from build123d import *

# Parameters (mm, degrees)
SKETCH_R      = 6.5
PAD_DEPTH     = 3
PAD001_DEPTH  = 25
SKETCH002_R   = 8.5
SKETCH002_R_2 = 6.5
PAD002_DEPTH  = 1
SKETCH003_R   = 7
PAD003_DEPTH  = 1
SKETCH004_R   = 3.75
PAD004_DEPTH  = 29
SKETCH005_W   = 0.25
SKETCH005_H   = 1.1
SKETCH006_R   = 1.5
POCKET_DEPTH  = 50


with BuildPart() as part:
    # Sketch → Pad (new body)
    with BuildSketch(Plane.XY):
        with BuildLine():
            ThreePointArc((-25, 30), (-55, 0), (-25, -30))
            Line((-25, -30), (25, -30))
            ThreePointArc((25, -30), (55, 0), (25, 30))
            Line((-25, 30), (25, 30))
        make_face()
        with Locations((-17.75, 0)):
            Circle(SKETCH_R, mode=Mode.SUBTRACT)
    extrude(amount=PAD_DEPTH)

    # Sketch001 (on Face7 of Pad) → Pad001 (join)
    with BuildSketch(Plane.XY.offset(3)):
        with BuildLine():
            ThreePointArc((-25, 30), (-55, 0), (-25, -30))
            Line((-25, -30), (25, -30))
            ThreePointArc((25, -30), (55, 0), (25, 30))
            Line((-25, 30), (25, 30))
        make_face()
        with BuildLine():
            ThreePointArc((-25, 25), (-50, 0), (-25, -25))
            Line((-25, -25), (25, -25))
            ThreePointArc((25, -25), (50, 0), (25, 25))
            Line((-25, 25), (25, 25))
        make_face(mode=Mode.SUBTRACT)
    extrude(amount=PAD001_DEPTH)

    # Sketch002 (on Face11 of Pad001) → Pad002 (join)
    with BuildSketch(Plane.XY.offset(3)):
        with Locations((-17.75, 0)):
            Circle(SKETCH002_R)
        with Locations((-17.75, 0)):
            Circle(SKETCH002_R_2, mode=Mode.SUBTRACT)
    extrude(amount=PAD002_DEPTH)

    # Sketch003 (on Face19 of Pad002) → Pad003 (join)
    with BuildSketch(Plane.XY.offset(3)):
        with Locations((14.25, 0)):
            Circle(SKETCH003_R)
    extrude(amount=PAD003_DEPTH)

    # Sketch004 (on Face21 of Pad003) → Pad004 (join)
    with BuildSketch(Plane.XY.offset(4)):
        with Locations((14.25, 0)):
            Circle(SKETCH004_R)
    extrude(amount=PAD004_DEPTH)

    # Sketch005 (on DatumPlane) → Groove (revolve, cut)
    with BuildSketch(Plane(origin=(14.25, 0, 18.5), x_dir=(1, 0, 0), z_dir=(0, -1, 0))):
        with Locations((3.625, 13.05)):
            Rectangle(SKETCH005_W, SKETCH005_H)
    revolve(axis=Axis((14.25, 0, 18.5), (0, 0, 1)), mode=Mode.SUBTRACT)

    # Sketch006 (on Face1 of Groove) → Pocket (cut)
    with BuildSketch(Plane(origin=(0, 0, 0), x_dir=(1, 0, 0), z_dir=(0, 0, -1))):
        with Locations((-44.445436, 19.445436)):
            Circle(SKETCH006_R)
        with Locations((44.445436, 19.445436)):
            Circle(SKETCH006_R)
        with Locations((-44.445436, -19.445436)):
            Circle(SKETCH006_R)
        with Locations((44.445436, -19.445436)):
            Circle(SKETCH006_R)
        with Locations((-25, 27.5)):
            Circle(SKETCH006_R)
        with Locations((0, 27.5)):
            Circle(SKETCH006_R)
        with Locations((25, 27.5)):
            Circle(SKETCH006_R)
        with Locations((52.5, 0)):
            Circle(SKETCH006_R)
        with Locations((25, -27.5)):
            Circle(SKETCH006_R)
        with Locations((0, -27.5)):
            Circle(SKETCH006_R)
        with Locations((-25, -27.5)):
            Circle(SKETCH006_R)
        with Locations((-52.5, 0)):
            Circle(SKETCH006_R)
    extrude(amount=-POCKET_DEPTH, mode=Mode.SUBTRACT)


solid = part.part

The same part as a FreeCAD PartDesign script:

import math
import FreeCAD as App
import Part
import Sketcher
Q = App.Units.Quantity


def add_polygon(sketch, points):
    """Adds a closed chain of lines whose ends are joined by coincident constraints."""
    first, n = sketch.GeometryCount, len(points)
    for a, b in zip(points, points[1:] + points[:1]):
        sketch.addGeometry(Part.LineSegment(App.Vector(*a, 0), App.Vector(*b, 0)), False)
    for i in range(n):
        sketch.addConstraint(Sketcher.Constraint("Coincident", first + i, 2, first + (i + 1) % n, 1))

doc = App.newDocument("Part")
params = doc.addObject("Spreadsheet::Sheet", "Params")
for row, (alias, value) in enumerate([
    ("sketch1_diameter", "13 mm"),
    ("sketch1_radius", "30 mm"),
    ("sketch1_width", "50 mm"),
    ("pad1_length", "3 mm"),
    ("sketch2_radius", "30 mm"),
    ("sketch2_radius2", "25 mm"),
    ("sketch2_width", "50 mm"),
    ("pad2_length", "25 mm"),
    ("sketch3_diameter", "17 mm"),
    ("sketch3_diameter2", "13 mm"),
    ("pad3_length", "1 mm"),
    ("sketch4_diameter", "14 mm"),
    ("pad4_length", "1 mm"),
    ("sketch5_diameter", "7.5 mm"),
    ("pad5_length", "29 mm"),
    ("sketch6_height", "1.1 mm"),
    ("sketch6_width", "0.25 mm"),
    ("groove_angle", "360 deg"),
    ("sketch7_diameter", "3 mm"),
    ("pocket1_length", "50 mm"),
], start=1):
    params.set(f"A{row}", alias)
    params.set(f"B{row}", "=" + value)
    params.setAlias(f"B{row}", alias)

body = doc.addObject("PartDesign::Body", "Body")

# Sketch on XY plane
sketch1 = body.newObject("Sketcher::SketchObject", "Sketch")
sketch1.AttachmentSupport = (doc.getObject("XY_Plane"), [""])
sketch1.MapMode = "FlatFace"
sketch1.addGeometry(Part.ArcOfCircle(Part.Circle(App.Vector(-25, 0, 0), App.Vector(0, 0, 1), 30), math.radians(90), math.radians(270)), False)
sketch1.addGeometry(Part.LineSegment(App.Vector(-25, -30, 0), App.Vector(25, -30, 0)), False)
sketch1.addGeometry(Part.ArcOfCircle(Part.Circle(App.Vector(25, 0, 0), App.Vector(0, 0, 1), 30), math.radians(-90), math.radians(90)), False)
sketch1.addGeometry(Part.LineSegment(App.Vector(25, 30, 0), App.Vector(-25, 30, 0)), False)
sketch1.addGeometry(Part.Circle(App.Vector(-18, 0, 0), App.Vector(0, 0, 1), 6), False)
sketch1.addConstraint(Sketcher.Constraint("Tangent", 0, 2, 1, 1))
sketch1.addConstraint(Sketcher.Constraint("Tangent", 1, 2, 2, 1))
sketch1.addConstraint(Sketcher.Constraint("Tangent", 2, 2, 3, 1))
sketch1.addConstraint(Sketcher.Constraint("Tangent", 3, 2, 0, 1))
sketch1.addConstraint(Sketcher.Constraint("Horizontal", 1))
sketch1.addConstraint(Sketcher.Constraint("Horizontal", 3))
sketch1.addConstraint(Sketcher.Constraint("Symmetric", 0, 3, 2, 3, -1, 1))
sketch1.addConstraint(Sketcher.Constraint("PointOnObject", 4, 3, -1))
sketch1.addConstraint(Sketcher.Constraint("Diameter", 4, Q("13 mm")))
sketch1.addConstraint(Sketcher.Constraint("Radius", 0, Q("30 mm")))
sketch1.addConstraint(Sketcher.Constraint("DistanceX", 1, 1, 1, 2, Q("50 mm")))
sketch1.addConstraint(Sketcher.Constraint("DistanceX", 4, 3, -1, 1, Q("17.75 mm")))
sketch1.setExpression("Constraints[8]", "Params.sketch1_diameter")
sketch1.setExpression("Constraints[9]", "Params.sketch1_radius")
sketch1.setExpression("Constraints[10]", "Params.sketch1_width")
pad1 = body.newObject("PartDesign::Pad", "Pad")
pad1.Profile = sketch1
pad1.setExpression("Length", "Params.pad1_length")

# Sketch on XY plane
sketch2 = body.newObject("Sketcher::SketchObject", "Sketch001")
sketch2.AttachmentSupport = (doc.getObject("XY_Plane"), [""])
sketch2.MapMode = "FlatFace"
sketch2.AttachmentOffset = App.Placement(App.Vector(0, 0, 3), App.Rotation())
sketch2.addGeometry(Part.ArcOfCircle(Part.Circle(App.Vector(-25, 0, 0), App.Vector(0, 0, 1), 30), math.radians(90), math.radians(270)), False)
sketch2.addGeometry(Part.LineSegment(App.Vector(-25, -30, 0), App.Vector(25, -30, 0)), False)
sketch2.addGeometry(Part.ArcOfCircle(Part.Circle(App.Vector(25, 0, 0), App.Vector(0, 0, 1), 30), math.radians(-90), math.radians(90)), False)
sketch2.addGeometry(Part.LineSegment(App.Vector(25, 30, 0), App.Vector(-25, 30, 0)), False)
sketch2.addGeometry(Part.ArcOfCircle(Part.Circle(App.Vector(-25, 0, 0), App.Vector(0, 0, 1), 25), math.radians(90), math.radians(270)), False)
sketch2.addGeometry(Part.LineSegment(App.Vector(-25, 25, 0), App.Vector(25, 25, 0)), False)
sketch2.addGeometry(Part.ArcOfCircle(Part.Circle(App.Vector(25, 0, 0), App.Vector(0, 0, 1), 25), math.radians(-90), math.radians(90)), False)
sketch2.addGeometry(Part.LineSegment(App.Vector(25, -25, 0), App.Vector(-25, -25, 0)), False)
sketch2.addConstraint(Sketcher.Constraint("Tangent", 0, 2, 1, 1))
sketch2.addConstraint(Sketcher.Constraint("Tangent", 1, 2, 2, 1))
sketch2.addConstraint(Sketcher.Constraint("Tangent", 2, 2, 3, 1))
sketch2.addConstraint(Sketcher.Constraint("Tangent", 3, 2, 0, 1))
sketch2.addConstraint(Sketcher.Constraint("Tangent", 4, 1, 5, 1))
sketch2.addConstraint(Sketcher.Constraint("Tangent", 5, 2, 6, 2))
sketch2.addConstraint(Sketcher.Constraint("Tangent", 6, 1, 7, 1))
sketch2.addConstraint(Sketcher.Constraint("Tangent", 7, 2, 4, 2))
sketch2.addConstraint(Sketcher.Constraint("Horizontal", 1))
sketch2.addConstraint(Sketcher.Constraint("Horizontal", 3))
sketch2.addConstraint(Sketcher.Constraint("Horizontal", 5))
sketch2.addConstraint(Sketcher.Constraint("Horizontal", 7))
sketch2.addConstraint(Sketcher.Constraint("Coincident", 4, 3, 0, 3))
sketch2.addConstraint(Sketcher.Constraint("Symmetric", 0, 3, 2, 3, -1, 1))
sketch2.addConstraint(Sketcher.Constraint("Vertical", 6, 3, 1, 2))
sketch2.addConstraint(Sketcher.Constraint("Radius", 0, Q("30 mm")))
sketch2.addConstraint(Sketcher.Constraint("Radius", 4, Q("25 mm")))
sketch2.addConstraint(Sketcher.Constraint("DistanceX", 1, 1, 1, 2, Q("50 mm")))
sketch2.setExpression("Constraints[15]", "Params.sketch2_radius")
sketch2.setExpression("Constraints[16]", "Params.sketch2_radius2")
sketch2.setExpression("Constraints[17]", "Params.sketch2_width")
pad2 = body.newObject("PartDesign::Pad", "Pad001")
pad2.Profile = sketch2
pad2.setExpression("Length", "Params.pad2_length")

# Sketch on XY plane
sketch3 = body.newObject("Sketcher::SketchObject", "Sketch002")
sketch3.AttachmentSupport = (doc.getObject("XY_Plane"), [""])
sketch3.MapMode = "FlatFace"
sketch3.AttachmentOffset = App.Placement(App.Vector(0, 0, 3), App.Rotation())
sketch3.addGeometry(Part.Circle(App.Vector(-18, 0, 0), App.Vector(0, 0, 1), 8), False)
sketch3.addGeometry(Part.Circle(App.Vector(-18, 0, 0), App.Vector(0, 0, 1), 6), False)
sketch3.addConstraint(Sketcher.Constraint("Coincident", 1, 3, 0, 3))
sketch3.addConstraint(Sketcher.Constraint("PointOnObject", 0, 3, -1))
sketch3.addConstraint(Sketcher.Constraint("Diameter", 0, Q("17 mm")))
sketch3.addConstraint(Sketcher.Constraint("Diameter", 1, Q("13 mm")))
sketch3.addConstraint(Sketcher.Constraint("DistanceX", 0, 3, -1, 1, Q("17.75 mm")))
sketch3.setExpression("Constraints[2]", "Params.sketch3_diameter")
sketch3.setExpression("Constraints[3]", "Params.sketch3_diameter2")
pad3 = body.newObject("PartDesign::Pad", "Pad002")
pad3.Profile = sketch3
pad3.setExpression("Length", "Params.pad3_length")

# Sketch on XY plane
sketch4 = body.newObject("Sketcher::SketchObject", "Sketch003")
sketch4.AttachmentSupport = (doc.getObject("XY_Plane"), [""])
sketch4.MapMode = "FlatFace"
sketch4.AttachmentOffset = App.Placement(App.Vector(0, 0, 3), App.Rotation())
sketch4.addGeometry(Part.Circle(App.Vector(14, 0, 0), App.Vector(0, 0, 1), 7), False)
sketch4.addConstraint(Sketcher.Constraint("PointOnObject", 0, 3, -1))
sketch4.addConstraint(Sketcher.Constraint("Diameter", 0, Q("14 mm")))
sketch4.addConstraint(Sketcher.Constraint("DistanceX", -1, 1, 0, 3, Q("14.25 mm")))
sketch4.setExpression("Constraints[1]", "Params.sketch4_diameter")
pad4 = body.newObject("PartDesign::Pad", "Pad003")
pad4.Profile = sketch4
pad4.setExpression("Length", "Params.pad4_length")

# Sketch on XY plane
sketch5 = body.newObject("Sketcher::SketchObject", "Sketch004")
sketch5.AttachmentSupport = (doc.getObject("XY_Plane"), [""])
sketch5.MapMode = "FlatFace"
sketch5.AttachmentOffset = App.Placement(App.Vector(0, 0, 4), App.Rotation())
sketch5.addGeometry(Part.Circle(App.Vector(14.2, 0, 0), App.Vector(0, 0, 1), 3.8), False)
sketch5.addConstraint(Sketcher.Constraint("PointOnObject", 0, 3, -1))
sketch5.addConstraint(Sketcher.Constraint("Diameter", 0, Q("7.5 mm")))
sketch5.addConstraint(Sketcher.Constraint("DistanceX", -1, 1, 0, 3, Q("14.25 mm")))
sketch5.setExpression("Constraints[1]", "Params.sketch5_diameter")
pad5 = body.newObject("PartDesign::Pad", "Pad004")
pad5.Profile = sketch5
pad5.setExpression("Length", "Params.pad5_length")

# Sketch on XZ plane
sketch6 = body.newObject("Sketcher::SketchObject", "Sketch005")
sketch6.AttachmentSupport = (doc.getObject("XZ_Plane"), [""])
sketch6.MapMode = "FlatFace"
add_polygon(sketch6, [(17.75, 32.1), (17.75, 31), (18, 31), (18, 32.1)])  # lines 0-3
sketch6.addGeometry(Part.LineSegment(App.Vector(14.25, 31, 0), App.Vector(14.25, 32.1, 0)), True)  # axis
sketch6.addConstraint(Sketcher.Constraint("Vertical", 0))
sketch6.addConstraint(Sketcher.Constraint("Horizontal", 1))
sketch6.addConstraint(Sketcher.Constraint("Vertical", 2))
sketch6.addConstraint(Sketcher.Constraint("Horizontal", 3))
sketch6.addConstraint(Sketcher.Constraint("Vertical", 4))
sketch6.addConstraint(Sketcher.Constraint("Horizontal", 1, 2, 4, 1))
sketch6.addConstraint(Sketcher.Constraint("Horizontal", 3, 2, 4, 2))
sketch6.addConstraint(Sketcher.Constraint("DistanceY", 0, 2, 0, 1, Q("1.1 mm")))
sketch6.addConstraint(Sketcher.Constraint("DistanceY", -1, 1, 0, 2, Q("31 mm")))
sketch6.addConstraint(Sketcher.Constraint("DistanceX", -1, 1, 1, 2, Q("18 mm")))
sketch6.addConstraint(Sketcher.Constraint("DistanceX", 1, 1, 1, 2, Q("0.25 mm")))
sketch6.addConstraint(Sketcher.Constraint("DistanceX", 4, 1, 0, 2, Q("3.5 mm")))
sketch6.setExpression("Constraints[11]", "Params.sketch6_height")
sketch6.setExpression("Constraints[14]", "Params.sketch6_width")
groove = body.newObject("PartDesign::Groove", "Groove")
groove.Profile = sketch6
groove.ReferenceAxis = (sketch6, ["Axis0"])
groove.setExpression("Angle", "Params.groove_angle")

# Sketch on XY plane
sketch7 = body.newObject("Sketcher::SketchObject", "Sketch006")
sketch7.AttachmentSupport = (doc.getObject("XY_Plane"), [""])
sketch7.MapMode = "FlatFace"
sketch7.addGeometry(Part.Circle(App.Vector(-44.4, -19.4, 0), App.Vector(0, 0, 1), 1.5), False)
sketch7.addGeometry(Part.Circle(App.Vector(44.4, -19.4, 0), App.Vector(0, 0, 1), 1.5), False)
sketch7.addGeometry(Part.Circle(App.Vector(-44.4, 19.4, 0), App.Vector(0, 0, 1), 1.5), False)
sketch7.addGeometry(Part.Circle(App.Vector(44.4, 19.4, 0), App.Vector(0, 0, 1), 1.5), False)
sketch7.addGeometry(Part.Circle(App.Vector(-25, -27.5, 0), App.Vector(0, 0, 1), 1.5), False)
sketch7.addGeometry(Part.Circle(App.Vector(0, -27.5, 0), App.Vector(0, 0, 1), 1.5), False)
sketch7.addGeometry(Part.Circle(App.Vector(25, -27.5, 0), App.Vector(0, 0, 1), 1.5), False)
sketch7.addGeometry(Part.Circle(App.Vector(52.5, 0, 0), App.Vector(0, 0, 1), 1.5), False)
sketch7.addGeometry(Part.Circle(App.Vector(25, 27.5, 0), App.Vector(0, 0, 1), 1.5), False)
sketch7.addGeometry(Part.Circle(App.Vector(0, 27.5, 0), App.Vector(0, 0, 1), 1.5), False)
sketch7.addGeometry(Part.Circle(App.Vector(-25, 27.5, 0), App.Vector(0, 0, 1), 1.5), False)
sketch7.addGeometry(Part.Circle(App.Vector(-52.5, 0, 0), App.Vector(0, 0, 1), 1.5), False)
sketch7.addConstraint(Sketcher.Constraint("Equal", 0, 1))
sketch7.addConstraint(Sketcher.Constraint("Equal", 1, 2))
sketch7.addConstraint(Sketcher.Constraint("Equal", 2, 3))
sketch7.addConstraint(Sketcher.Constraint("Equal", 3, 4))
sketch7.addConstraint(Sketcher.Constraint("Equal", 4, 5))
sketch7.addConstraint(Sketcher.Constraint("Equal", 5, 6))
sketch7.addConstraint(Sketcher.Constraint("Equal", 6, 7))
sketch7.addConstraint(Sketcher.Constraint("Equal", 7, 8))
sketch7.addConstraint(Sketcher.Constraint("Equal", 8, 9))
sketch7.addConstraint(Sketcher.Constraint("Equal", 9, 10))
sketch7.addConstraint(Sketcher.Constraint("Equal", 10, 11))
sketch7.addConstraint(Sketcher.Constraint("Symmetric", 1, 3, 2, 3, -1, 1))
sketch7.addConstraint(Sketcher.Constraint("Symmetric", 0, 3, 3, 3, -1, 1))
sketch7.addConstraint(Sketcher.Constraint("Symmetric", 4, 3, 8, 3, -1, 1))
sketch7.addConstraint(Sketcher.Constraint("Symmetric", 5, 3, 9, 3, -1, 1))
sketch7.addConstraint(Sketcher.Constraint("Symmetric", 6, 3, 10, 3, -1, 1))
sketch7.addConstraint(Sketcher.Constraint("Symmetric", 7, 3, 11, 3, -1, 1))
sketch7.addConstraint(Sketcher.Constraint("Symmetric", 0, 3, 1, 3, -2))
sketch7.addConstraint(Sketcher.Constraint("Symmetric", 4, 3, 6, 3, -2))
sketch7.addConstraint(Sketcher.Constraint("PointOnObject", 5, 3, -2))
sketch7.addConstraint(Sketcher.Constraint("PointOnObject", 7, 3, -1))
sketch7.addConstraint(Sketcher.Constraint("Horizontal", 4, 3, 5, 3))
sketch7.addConstraint(Sketcher.Constraint("Diameter", 0, Q("3 mm")))
sketch7.addConstraint(Sketcher.Constraint("DistanceX", 4, 3, -1, 1, Q("25 mm")))
sketch7.addConstraint(Sketcher.Constraint("DistanceY", 6, 3, 8, 3, Q("55 mm")))
sketch7.addConstraint(Sketcher.Constraint("DistanceX", -1, 1, 7, 3, Q("52.5 mm")))
sketch7.addConstraint(Sketcher.Constraint("DistanceX", 0, 3, 1, 3, Q("88.890872 mm")))
sketch7.addConstraint(Sketcher.Constraint("DistanceY", 0, 3, -1, 1, Q("19.445436 mm")))
sketch7.setExpression("Constraints[22]", "Params.sketch7_diameter")
pocket1 = body.newObject("PartDesign::Pocket", "Pocket")
pocket1.Profile = sketch7
pocket1.setExpression("Length", "Params.pocket1_length")
pocket1.Reversed = True

doc.recompute()
